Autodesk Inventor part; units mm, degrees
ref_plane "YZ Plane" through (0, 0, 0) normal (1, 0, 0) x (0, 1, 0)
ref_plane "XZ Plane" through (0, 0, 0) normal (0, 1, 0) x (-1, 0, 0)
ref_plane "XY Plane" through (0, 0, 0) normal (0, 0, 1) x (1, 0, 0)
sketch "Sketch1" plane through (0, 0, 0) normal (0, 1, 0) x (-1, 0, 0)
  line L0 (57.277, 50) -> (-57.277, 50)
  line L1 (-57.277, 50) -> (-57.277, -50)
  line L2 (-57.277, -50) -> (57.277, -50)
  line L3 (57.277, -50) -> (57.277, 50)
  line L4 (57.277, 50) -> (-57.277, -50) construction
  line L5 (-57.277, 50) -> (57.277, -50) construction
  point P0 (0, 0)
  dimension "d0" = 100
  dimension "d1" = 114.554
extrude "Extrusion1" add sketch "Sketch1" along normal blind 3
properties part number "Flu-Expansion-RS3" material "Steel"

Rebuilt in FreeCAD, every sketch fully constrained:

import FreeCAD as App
import Part
import Sketcher

V = App.Vector
Q = App.Units.Quantity


def add_polygon(sketch, points):
    """Adds a closed chain of lines whose ends are joined by coincident constraints."""
    first, n = sketch.GeometryCount, len(points)
    for a, b in zip(points, points[1:] + points[:1]):
        sketch.addGeometry(Part.LineSegment(App.Vector(*a, 0), App.Vector(*b, 0)), False)
    for i in range(n):
        sketch.addConstraint(Sketcher.Constraint("Coincident", first + i, 2, first + (i + 1) % n, 1))

doc = App.newDocument("Part")
body = doc.addObject("PartDesign::Body", "Body")

# Sketch on XZ plane
sketch1 = body.newObject("Sketcher::SketchObject", "Sketch")
sketch1.AttachmentSupport = (doc.getObject("XZ_Plane"), [""])
sketch1.MapMode = "FlatFace"
add_polygon(sketch1, [(-57, -50), (-57, 50), (57, 50), (57, -50)])  # lines 0-3
sketch1.addConstraint([
    Sketcher.Constraint("Vertical", 0),
    Sketcher.Constraint("Horizontal", 1),
    Sketcher.Constraint("Vertical", 2),
    Sketcher.Constraint("Horizontal", 3),
    Sketcher.Constraint("Symmetric", 0, 2, 2, 2, -1, 1),
    Sketcher.Constraint("DistanceX", 1, 1, 1, 2, Q("4.51 in")),
    Sketcher.Constraint("DistanceY", 0, 1, 0, 2, Q("3.937 in")),
])
pad1 = body.newObject("PartDesign::Pad", "Pad")
pad1.Profile = sketch1
pad1.Length = Q("0.1181102 in")
pad1.Reversed = True

doc.recompute()
